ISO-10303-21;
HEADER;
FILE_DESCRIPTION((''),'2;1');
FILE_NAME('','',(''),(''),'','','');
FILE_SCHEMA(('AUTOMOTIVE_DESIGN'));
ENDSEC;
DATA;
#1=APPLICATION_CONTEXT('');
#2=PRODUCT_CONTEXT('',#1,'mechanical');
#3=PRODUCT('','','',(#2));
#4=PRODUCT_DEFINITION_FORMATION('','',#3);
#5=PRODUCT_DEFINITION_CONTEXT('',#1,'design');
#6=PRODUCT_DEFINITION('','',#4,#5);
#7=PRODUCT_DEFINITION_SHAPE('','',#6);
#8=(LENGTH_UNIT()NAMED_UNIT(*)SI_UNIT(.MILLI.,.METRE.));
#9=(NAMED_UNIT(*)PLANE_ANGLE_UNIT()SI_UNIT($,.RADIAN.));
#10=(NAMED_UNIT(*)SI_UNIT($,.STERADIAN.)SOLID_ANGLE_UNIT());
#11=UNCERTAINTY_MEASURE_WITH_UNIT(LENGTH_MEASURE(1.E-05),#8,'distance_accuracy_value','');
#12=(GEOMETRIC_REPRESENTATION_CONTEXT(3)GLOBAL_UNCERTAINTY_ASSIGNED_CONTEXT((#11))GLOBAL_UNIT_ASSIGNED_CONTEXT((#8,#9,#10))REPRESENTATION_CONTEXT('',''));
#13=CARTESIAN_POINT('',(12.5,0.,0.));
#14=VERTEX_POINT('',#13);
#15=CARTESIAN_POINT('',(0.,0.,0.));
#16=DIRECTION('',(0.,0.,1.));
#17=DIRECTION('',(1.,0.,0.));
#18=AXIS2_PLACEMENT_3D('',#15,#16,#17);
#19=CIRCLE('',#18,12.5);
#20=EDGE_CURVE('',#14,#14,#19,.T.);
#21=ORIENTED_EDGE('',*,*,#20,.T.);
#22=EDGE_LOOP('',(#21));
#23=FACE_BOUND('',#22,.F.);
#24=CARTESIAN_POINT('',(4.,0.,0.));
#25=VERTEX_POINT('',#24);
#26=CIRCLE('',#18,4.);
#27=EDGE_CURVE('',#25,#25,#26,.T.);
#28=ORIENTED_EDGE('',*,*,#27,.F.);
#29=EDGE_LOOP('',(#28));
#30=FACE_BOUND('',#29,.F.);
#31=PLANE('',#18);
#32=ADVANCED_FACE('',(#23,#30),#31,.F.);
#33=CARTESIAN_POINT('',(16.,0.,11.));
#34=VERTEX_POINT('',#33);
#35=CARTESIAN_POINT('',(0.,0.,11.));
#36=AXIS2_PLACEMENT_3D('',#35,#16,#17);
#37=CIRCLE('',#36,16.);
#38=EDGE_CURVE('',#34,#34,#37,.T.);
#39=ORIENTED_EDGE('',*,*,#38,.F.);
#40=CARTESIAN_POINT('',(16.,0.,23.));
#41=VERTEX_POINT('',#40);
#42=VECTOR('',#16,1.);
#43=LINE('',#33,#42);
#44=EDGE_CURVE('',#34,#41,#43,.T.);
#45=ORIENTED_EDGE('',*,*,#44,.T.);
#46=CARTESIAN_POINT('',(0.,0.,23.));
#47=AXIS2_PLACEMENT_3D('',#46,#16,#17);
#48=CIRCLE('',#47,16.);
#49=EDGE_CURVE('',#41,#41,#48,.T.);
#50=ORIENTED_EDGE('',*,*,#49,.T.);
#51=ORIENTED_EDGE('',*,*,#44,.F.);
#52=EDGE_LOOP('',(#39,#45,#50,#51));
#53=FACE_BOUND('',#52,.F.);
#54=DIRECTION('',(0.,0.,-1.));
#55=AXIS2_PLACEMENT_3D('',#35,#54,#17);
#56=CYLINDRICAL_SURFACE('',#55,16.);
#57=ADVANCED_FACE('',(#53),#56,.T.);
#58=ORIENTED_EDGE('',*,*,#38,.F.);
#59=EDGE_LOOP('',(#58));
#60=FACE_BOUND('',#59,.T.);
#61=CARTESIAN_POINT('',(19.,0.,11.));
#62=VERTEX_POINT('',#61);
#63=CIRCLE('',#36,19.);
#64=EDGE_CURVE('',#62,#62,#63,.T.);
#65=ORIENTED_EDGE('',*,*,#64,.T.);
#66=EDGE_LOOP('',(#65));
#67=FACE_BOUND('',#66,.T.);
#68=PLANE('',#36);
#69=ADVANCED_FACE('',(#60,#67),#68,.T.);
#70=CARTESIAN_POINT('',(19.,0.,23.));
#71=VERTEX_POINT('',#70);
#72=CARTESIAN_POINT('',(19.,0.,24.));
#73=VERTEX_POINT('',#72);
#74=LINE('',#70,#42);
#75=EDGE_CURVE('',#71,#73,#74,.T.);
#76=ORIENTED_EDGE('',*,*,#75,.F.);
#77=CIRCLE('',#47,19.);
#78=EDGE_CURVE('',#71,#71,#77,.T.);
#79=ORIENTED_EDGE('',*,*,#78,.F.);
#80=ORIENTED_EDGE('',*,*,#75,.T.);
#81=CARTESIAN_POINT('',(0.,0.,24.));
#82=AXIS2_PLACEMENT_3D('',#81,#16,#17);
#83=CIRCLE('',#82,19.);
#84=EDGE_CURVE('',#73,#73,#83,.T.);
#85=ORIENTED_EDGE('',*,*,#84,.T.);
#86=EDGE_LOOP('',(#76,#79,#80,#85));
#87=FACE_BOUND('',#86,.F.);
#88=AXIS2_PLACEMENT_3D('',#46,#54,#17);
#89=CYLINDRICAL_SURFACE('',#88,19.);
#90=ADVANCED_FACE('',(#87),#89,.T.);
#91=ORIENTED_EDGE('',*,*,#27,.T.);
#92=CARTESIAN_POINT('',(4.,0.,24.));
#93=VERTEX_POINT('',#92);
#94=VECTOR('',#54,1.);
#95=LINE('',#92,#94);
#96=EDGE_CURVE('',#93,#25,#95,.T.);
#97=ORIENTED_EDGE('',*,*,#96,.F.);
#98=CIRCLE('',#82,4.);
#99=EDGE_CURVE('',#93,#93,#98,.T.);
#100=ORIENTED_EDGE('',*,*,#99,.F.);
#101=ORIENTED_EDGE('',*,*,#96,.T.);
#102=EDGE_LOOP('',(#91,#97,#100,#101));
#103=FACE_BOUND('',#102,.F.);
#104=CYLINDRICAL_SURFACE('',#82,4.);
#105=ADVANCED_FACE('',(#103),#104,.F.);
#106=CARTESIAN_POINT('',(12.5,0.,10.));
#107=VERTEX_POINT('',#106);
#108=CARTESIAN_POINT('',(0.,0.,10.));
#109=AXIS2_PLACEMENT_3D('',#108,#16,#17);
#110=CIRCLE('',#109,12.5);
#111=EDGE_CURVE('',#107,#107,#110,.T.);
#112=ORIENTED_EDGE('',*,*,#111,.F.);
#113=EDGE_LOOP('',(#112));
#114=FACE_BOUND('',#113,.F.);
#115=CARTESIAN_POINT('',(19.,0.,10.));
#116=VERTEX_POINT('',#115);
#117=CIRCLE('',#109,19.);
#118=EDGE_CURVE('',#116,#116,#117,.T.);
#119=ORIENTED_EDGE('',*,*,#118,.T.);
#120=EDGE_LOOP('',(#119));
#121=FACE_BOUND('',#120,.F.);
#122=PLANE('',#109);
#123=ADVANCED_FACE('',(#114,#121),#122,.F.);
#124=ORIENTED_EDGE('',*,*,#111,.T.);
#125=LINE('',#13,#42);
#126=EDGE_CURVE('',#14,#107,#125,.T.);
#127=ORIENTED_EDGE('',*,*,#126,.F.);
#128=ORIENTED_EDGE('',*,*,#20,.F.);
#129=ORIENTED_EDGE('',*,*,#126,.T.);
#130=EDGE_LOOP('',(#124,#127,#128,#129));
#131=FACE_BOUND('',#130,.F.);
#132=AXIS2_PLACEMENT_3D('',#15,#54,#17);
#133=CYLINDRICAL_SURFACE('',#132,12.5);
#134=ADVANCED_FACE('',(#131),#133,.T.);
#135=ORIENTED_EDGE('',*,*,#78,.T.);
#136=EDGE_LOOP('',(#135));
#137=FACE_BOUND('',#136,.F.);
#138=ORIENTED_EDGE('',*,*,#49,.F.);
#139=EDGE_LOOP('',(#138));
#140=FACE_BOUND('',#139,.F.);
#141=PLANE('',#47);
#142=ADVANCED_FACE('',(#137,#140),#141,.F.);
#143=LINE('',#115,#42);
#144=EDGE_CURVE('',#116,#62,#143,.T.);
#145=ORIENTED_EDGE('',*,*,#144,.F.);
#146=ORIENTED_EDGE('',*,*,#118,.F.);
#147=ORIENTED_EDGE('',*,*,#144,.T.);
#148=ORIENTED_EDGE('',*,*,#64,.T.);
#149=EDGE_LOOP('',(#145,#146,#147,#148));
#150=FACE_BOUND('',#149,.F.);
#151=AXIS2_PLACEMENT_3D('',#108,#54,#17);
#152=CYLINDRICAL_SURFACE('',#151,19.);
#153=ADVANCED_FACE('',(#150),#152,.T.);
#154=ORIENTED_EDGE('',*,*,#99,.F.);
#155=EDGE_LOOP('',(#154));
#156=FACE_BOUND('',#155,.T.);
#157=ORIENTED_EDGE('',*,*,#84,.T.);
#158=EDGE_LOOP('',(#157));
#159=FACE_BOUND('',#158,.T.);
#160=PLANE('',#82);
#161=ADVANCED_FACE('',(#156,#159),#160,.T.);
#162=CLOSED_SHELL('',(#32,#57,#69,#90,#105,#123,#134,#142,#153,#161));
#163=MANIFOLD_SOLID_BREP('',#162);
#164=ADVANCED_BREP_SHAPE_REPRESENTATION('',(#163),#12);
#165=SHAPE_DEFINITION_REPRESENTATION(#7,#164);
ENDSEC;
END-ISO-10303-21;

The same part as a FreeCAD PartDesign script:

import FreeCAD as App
import Part
import Sketcher

V = App.Vector

doc = App.newDocument("Part")
body = doc.addObject("PartDesign::Body", "Body")

# Sketch on XY plane
sketch1 = body.newObject("Sketcher::SketchObject", "Sketch")
sketch1.AttachmentSupport = (doc.getObject("XY_Plane"), [""])
sketch1.MapMode = "FlatFace"
sketch1.addGeometry(Part.Circle(V(0, 0, 0), V(0, 0, 1), 12), False)
sketch1.addConstraint(Sketcher.Constraint("Coincident", 0, 3, -1, 1))
sketch1.addConstraint(Sketcher.Constraint("Diameter", 0, 25.0))
pad1 = body.newObject("PartDesign::Pad", "Pad")
pad1.Profile = sketch1
pad1.Length = 10

# Sketch on XY plane
sketch2 = body.newObject("Sketcher::SketchObject", "Sketch001")
sketch2.AttachmentSupport = (doc.getObject("XY_Plane"), [""])
sketch2.MapMode = "FlatFace"
sketch2.AttachmentOffset = App.Placement(V(0, 0, 10), App.Rotation())
sketch2.addGeometry(Part.Circle(V(0, 0, 0), V(0, 0, 1), 19), False)
sketch2.addConstraint(Sketcher.Constraint("Coincident", 0, 3, -1, 1))
sketch2.addConstraint(Sketcher.Constraint("Diameter", 0, 38.0))
pad2 = body.newObject("PartDesign::Pad", "Pad001")
pad2.Profile = sketch2
pad2.Length = 1

# Sketch on XY plane
sketch3 = body.newObject("Sketcher::SketchObject", "Sketch002")
sketch3.AttachmentSupport = (doc.getObject("XY_Plane"), [""])
sketch3.MapMode = "FlatFace"
sketch3.AttachmentOffset = App.Placement(V(0, 0, 11), App.Rotation())
sketch3.addGeometry(Part.Circle(V(0, 0, 0), V(0, 0, 1), 16), False)
sketch3.addConstraint(Sketcher.Constraint("Coincident", 0, 3, -1, 1))
sketch3.addConstraint(Sketcher.Constraint("Diameter", 0, 32.0))
pad3 = body.newObject("PartDesign::Pad", "Pad002")
pad3.Profile = sketch3
pad3.Length = 12

# Sketch on XY plane
sketch4 = body.newObject("Sketcher::SketchObject", "Sketch003")
sketch4.AttachmentSupport = (doc.getObject("XY_Plane"), [""])
sketch4.MapMode = "FlatFace"
sketch4.AttachmentOffset = App.Placement(V(0, 0, 23), App.Rotation())
sketch4.addGeometry(Part.Circle(V(0, 0, 0), V(0, 0, 1), 19), False)
sketch4.addConstraint(Sketcher.Constraint("Coincident", 0, 3, -1, 1))
sketch4.addConstraint(Sketcher.Constraint("Diameter", 0, 38.0))
pad4 = body.newObject("PartDesign::Pad", "Pad003")
pad4.Profile = sketch4
pad4.Length = 1

# Sketch on XY plane
sketch5 = body.newObject("Sketcher::SketchObject", "Sketch004")
sketch5.AttachmentSupport = (doc.getObject("XY_Plane"), [""])
sketch5.MapMode = "FlatFace"
sketch5.AttachmentOffset = App.Placement(V(0, 0, 24), App.Rotation())
sketch5.addGeometry(Part.Circle(V(0, 0, 0), V(0, 0, 1), 4), False)
sketch5.addConstraint(Sketcher.Constraint("Coincident", 0, 3, -1, 1))
sketch5.addConstraint(Sketcher.Constraint("Diameter", 0, 8.0))
pocket1 = body.newObject("PartDesign::Pocket", "Pocket")
pocket1.Profile = sketch5
pocket1.Type = "ThroughAll"

doc.recompute()
